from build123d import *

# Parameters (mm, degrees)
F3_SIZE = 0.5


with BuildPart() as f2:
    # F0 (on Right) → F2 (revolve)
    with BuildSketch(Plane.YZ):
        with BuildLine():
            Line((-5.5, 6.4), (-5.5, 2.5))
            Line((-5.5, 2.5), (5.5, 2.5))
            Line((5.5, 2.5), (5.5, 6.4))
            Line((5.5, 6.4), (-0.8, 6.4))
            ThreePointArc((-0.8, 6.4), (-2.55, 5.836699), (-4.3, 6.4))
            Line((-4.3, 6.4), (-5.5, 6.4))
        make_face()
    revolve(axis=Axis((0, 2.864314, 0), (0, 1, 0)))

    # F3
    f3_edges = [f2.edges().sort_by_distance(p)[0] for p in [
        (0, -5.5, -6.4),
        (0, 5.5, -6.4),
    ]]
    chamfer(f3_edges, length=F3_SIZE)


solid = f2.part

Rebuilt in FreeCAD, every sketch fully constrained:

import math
import FreeCAD as App
import Part
import Sketcher
from FreeCAD import Vector


def edges_at(feature, points):
    """Names of the edges that pass closest to the given points."""
    edges = feature.Shape.Edges
    near = lambda p: min(range(len(edges)), key=lambda i: edges[i].distToShape(Part.Vertex(*p))[0])
    return sorted({f"Edge{near(p) + 1}" for p in points})

doc = App.newDocument("Part")
body = doc.addObject("PartDesign::Body", "Body")

sketch1 = body.newObject("Sketcher::SketchObject", "Sketch")
sketch1.AttachmentSupport = (doc.getObject("YZ_Plane"), [""])
sketch1.MapMode = "FlatFace"
sketch1.addGeometry([
    Part.LineSegment(Vector(-5.5, 6.4, 0), Vector(-5.5, 2.5, 0)),
    Part.LineSegment(Vector(-5.5, 2.5, 0), Vector(5.5, 2.5, 0)),
    Part.LineSegment(Vector(5.5, 2.5, 0), Vector(5.5, 6.4, 0)),
    Part.LineSegment(Vector(5.5, 6.4, 0), Vector(-0.8, 6.4, 0)),
    Part.ArcOfCircle(Part.Circle(Vector(-2.5, 8.8, 0), Vector(0, 0, 1), 3), math.radians(-126), math.radians(-54)),
    Part.LineSegment(Vector(-4.3, 6.4, 0), Vector(-5.5, 6.4, 0)),
], False)
sketch1.addConstraint([
    Sketcher.Constraint("Coincident", 0, 2, 1, 1),
    Sketcher.Constraint("Coincident", 1, 2, 2, 1),
    Sketcher.Constraint("Coincident", 2, 2, 3, 1),
    Sketcher.Constraint("Coincident", 3, 2, 4, 2),
    Sketcher.Constraint("Coincident", 4, 1, 5, 1),
    Sketcher.Constraint("Coincident", 5, 2, 0, 1),
    Sketcher.Constraint("Vertical", 0),
    Sketcher.Constraint("Horizontal", 1),
    Sketcher.Constraint("Vertical", 2),
    Sketcher.Constraint("Horizontal", 3),
    Sketcher.Constraint("Horizontal", 5),
    Sketcher.Constraint("Symmetric", 2, 2, 5, 2, -2),
    Sketcher.Constraint("Radius", 4, 3.000002),
    Sketcher.Constraint("DistanceX", 1, 1, 1, 2, 11.0),
    Sketcher.Constraint("DistanceX", 3, 2, 3, 1, 6.3),
    Sketcher.Constraint("DistanceX", 5, 2, 5, 1, 1.2),
    Sketcher.Constraint("DistanceY", 0, 2, 0, 1, 3.9),
    Sketcher.Constraint("DistanceY", -1, 1, 0, 2, 2.5),
])
revolution = body.newObject("PartDesign::Revolution", "Revolution")
revolution.Profile = sketch1
revolution.ReferenceAxis = (sketch1, ["H_Axis"])
revolution.Angle = 360
doc.recompute()

chamfer = body.newObject("PartDesign::Chamfer", "Chamfer")
chamfer.Base = (revolution, edges_at(revolution, [(0, -5.5, -6.4), (0, 5.5, -6.4)]))
chamfer.Size = 0.5

doc.recompute()
